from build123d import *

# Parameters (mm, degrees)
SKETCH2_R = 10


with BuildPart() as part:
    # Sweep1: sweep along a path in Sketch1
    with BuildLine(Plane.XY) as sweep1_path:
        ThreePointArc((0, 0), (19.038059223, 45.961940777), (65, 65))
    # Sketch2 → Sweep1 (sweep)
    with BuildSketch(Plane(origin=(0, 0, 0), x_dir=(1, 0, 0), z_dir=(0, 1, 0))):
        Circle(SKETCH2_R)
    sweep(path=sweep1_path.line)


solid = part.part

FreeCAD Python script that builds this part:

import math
import FreeCAD as App
import Part
import Sketcher

V = App.Vector

doc = App.newDocument("Part")
body = doc.addObject("PartDesign::Body", "Body")

sketch1 = body.newObject("Sketcher::SketchObject", "Sketch")
sketch1.AttachmentSupport = (doc.getObject("XZ_Plane"), [""])
sketch1.MapMode = "FlatFace"
sketch1.addGeometry(Part.Circle(V(0, 0, 0), V(0, 0, 1), 10), False)
sketch1.addConstraint([
    Sketcher.Constraint("Coincident", 0, 3, -1, 1),
    Sketcher.Constraint("Diameter", 0, 20.0),
])

sketch2 = body.newObject("Sketcher::SketchObject", "Sketch001")
sketch2.AttachmentSupport = (doc.getObject("XY_Plane"), [""])
sketch2.MapMode = "FlatFace"
sketch2.addGeometry(Part.ArcOfCircle(Part.Circle(V(65, 0, 0), V(0, 0, 1), 65), math.radians(90), math.radians(180)), False)
sketch2.addConstraint([
    Sketcher.Constraint("Coincident", 0, 2, -1, 1),
    Sketcher.Constraint("PointOnObject", 0, 3, -1),
    Sketcher.Constraint("Radius", 0, 65.0),
    Sketcher.Constraint("DistanceX", -1, 1, 0, 1, 65.0),
])
doc.recompute()

additivepipe = body.newObject("PartDesign::AdditivePipe", "AdditivePipe")
additivepipe.Profile = sketch1
additivepipe.Spine = (sketch2, ["Edge1"])

doc.recompute()
